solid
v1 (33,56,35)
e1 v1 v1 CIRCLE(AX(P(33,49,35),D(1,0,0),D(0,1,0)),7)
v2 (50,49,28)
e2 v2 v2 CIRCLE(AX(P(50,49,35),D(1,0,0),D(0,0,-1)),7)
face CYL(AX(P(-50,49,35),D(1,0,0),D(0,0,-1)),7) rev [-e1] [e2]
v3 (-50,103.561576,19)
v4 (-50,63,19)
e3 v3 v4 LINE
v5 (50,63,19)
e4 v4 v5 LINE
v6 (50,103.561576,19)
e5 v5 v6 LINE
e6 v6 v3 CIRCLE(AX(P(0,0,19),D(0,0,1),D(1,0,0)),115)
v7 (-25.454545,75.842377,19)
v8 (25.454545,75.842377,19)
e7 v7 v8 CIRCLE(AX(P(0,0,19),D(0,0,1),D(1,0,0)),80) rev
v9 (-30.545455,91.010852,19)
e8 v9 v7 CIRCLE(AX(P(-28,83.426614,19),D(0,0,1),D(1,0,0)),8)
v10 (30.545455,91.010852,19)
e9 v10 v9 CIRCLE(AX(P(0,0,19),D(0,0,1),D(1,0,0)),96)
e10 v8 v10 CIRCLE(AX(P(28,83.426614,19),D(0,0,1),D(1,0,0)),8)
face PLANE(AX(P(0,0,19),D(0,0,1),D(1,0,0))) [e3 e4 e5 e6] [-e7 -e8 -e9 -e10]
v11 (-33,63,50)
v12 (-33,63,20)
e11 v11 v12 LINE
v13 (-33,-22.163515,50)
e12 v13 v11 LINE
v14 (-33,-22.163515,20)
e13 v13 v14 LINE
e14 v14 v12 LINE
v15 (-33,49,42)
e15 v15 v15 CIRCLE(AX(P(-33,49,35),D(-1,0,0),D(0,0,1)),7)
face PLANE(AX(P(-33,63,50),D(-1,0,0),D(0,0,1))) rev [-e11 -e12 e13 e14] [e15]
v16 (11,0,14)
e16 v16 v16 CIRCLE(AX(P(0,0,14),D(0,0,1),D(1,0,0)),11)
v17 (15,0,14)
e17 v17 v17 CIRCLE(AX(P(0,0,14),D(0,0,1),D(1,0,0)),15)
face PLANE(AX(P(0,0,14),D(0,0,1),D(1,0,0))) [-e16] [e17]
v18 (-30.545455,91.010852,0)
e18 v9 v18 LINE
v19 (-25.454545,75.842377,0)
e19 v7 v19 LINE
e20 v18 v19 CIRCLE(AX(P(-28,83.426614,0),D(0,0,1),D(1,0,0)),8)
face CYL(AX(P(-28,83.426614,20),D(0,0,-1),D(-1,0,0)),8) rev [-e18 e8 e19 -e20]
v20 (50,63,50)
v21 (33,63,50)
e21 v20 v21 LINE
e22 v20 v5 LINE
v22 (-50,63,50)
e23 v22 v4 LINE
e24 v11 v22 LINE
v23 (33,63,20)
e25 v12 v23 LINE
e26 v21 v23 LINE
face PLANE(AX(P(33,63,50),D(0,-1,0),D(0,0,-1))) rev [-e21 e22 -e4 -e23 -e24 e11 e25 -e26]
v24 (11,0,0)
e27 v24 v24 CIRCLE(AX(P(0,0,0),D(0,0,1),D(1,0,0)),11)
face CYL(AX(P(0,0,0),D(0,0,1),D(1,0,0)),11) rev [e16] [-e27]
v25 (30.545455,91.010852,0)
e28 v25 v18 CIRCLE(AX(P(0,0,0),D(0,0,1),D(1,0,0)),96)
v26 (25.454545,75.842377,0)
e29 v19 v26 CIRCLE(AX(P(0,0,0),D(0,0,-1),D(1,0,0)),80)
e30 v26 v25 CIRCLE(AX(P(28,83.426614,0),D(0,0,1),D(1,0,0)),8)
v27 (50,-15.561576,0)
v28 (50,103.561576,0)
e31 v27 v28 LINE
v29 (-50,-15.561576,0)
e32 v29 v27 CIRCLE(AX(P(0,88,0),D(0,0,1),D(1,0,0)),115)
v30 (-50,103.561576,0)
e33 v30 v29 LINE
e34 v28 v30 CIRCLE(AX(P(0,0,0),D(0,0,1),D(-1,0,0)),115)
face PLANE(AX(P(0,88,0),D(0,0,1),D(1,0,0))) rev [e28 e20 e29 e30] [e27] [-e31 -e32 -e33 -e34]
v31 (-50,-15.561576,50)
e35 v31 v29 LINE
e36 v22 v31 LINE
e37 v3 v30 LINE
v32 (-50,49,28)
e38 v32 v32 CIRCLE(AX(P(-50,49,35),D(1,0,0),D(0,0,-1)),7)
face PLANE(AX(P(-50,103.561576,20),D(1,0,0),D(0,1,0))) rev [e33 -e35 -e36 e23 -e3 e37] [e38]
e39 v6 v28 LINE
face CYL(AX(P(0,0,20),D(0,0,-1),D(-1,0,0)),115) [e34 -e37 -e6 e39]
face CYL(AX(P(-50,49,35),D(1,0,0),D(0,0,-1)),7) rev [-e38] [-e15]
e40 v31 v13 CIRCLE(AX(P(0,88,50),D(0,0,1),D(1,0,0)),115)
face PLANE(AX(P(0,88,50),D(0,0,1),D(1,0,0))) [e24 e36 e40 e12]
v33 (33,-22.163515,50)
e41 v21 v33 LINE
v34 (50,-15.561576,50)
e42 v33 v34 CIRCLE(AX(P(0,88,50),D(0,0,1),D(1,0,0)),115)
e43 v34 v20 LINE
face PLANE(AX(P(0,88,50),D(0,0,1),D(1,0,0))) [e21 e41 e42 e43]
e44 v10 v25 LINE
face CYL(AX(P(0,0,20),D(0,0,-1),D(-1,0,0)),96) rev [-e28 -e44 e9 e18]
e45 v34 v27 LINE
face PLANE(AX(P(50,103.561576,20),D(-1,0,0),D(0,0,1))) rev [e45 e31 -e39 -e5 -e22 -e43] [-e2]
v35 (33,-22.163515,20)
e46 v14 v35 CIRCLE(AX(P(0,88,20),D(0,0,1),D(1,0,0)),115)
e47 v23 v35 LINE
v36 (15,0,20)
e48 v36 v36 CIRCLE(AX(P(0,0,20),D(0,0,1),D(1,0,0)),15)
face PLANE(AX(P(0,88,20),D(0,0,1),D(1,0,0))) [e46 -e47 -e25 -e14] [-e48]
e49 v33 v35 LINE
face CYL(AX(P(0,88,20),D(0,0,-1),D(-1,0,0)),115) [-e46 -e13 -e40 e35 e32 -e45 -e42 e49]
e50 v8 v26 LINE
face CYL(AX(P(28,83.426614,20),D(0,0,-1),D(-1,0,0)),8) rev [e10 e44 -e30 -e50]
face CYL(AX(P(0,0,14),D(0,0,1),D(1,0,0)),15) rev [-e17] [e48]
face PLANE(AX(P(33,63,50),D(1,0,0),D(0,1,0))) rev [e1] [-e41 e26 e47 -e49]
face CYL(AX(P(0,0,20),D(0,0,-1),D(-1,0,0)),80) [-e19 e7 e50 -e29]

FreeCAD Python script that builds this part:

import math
import FreeCAD as App
import Part
import Sketcher
from FreeCAD import Vector
Q = App.Units.Quantity

doc = App.newDocument("Part")
body = doc.addObject("PartDesign::Body", "Body")

sketch1 = doc.addObject("Sketcher::SketchObject", "Sketch")
body.addObject(sketch1)
sketch1.AttachmentSupport = (doc.XY_Plane, [""])
sketch1.MapMode = "FlatFace"
sketch1.addGeometry([
    Part.LineSegment(Vector(-50, 104, 0), Vector(-50, -16, 0)),
    Part.ArcOfCircle(Part.Circle(Vector(0, 88, 0), Vector(0, 0, 1), 115), math.radians(-116), math.radians(-64)),
    Part.LineSegment(Vector(50, -16, 0), Vector(50, 104, 0)),
    Part.ArcOfCircle(Part.Circle(Vector(0, 0, 0), Vector(0, 0, 1), 115), math.radians(64), math.radians(116)),
    Part.ArcOfCircle(Part.Circle(Vector(0, 0, 0), Vector(0, 0, 1), 96), math.radians(71), math.radians(109)),
    Part.ArcOfCircle(Part.Circle(Vector(28, 83, 0), Vector(0, 0, 1), 8), math.radians(-109), math.radians(71)),
    Part.ArcOfCircle(Part.Circle(Vector(0, 0, 0), Vector(0, 0, 1), 80), math.radians(71), math.radians(109)),
    Part.ArcOfCircle(Part.Circle(Vector(-28, 83, 0), Vector(0, 0, 1), 8), math.radians(109), math.radians(289)),
], False)
sketch1.addConstraint([
    Sketcher.Constraint("Coincident", 0, 2, 1, 1),
    Sketcher.Constraint("Coincident", 1, 2, 2, 1),
    Sketcher.Constraint("Coincident", 2, 2, 3, 1),
    Sketcher.Constraint("Coincident", 3, 2, 0, 1),
    Sketcher.Constraint("Tangent", 4, 1, 5, 2),
    Sketcher.Constraint("Tangent", 5, 1, 6, 1),
    Sketcher.Constraint("Tangent", 6, 2, 7, 2),
    Sketcher.Constraint("Tangent", 7, 1, 4, 2),
    Sketcher.Constraint("Vertical", 0),
    Sketcher.Constraint("Vertical", 2),
    Sketcher.Constraint("Coincident", 3, 3, -1, 1),
    Sketcher.Constraint("Coincident", 4, 3, -1, 1),
    Sketcher.Constraint("Coincident", 6, 3, -1, 1),
    Sketcher.Constraint("Equal", 1, 3),
    Sketcher.Constraint("Symmetric", 0, 2, 1, 2, -2),
    Sketcher.Constraint("Horizontal", 5, 3, 7, 3),
    Sketcher.Constraint("Radius", 1, Q("115 mm")),
    Sketcher.Constraint("Radius", 4, Q("96 mm")),
    Sketcher.Constraint("Radius", 5, Q("8 mm")),
    Sketcher.Constraint("DistanceY", -1, 1, 1, 3, Q("88 mm")),
    Sketcher.Constraint("DistanceX", -1, 1, 5, 3, Q("28 mm")),
    Sketcher.Constraint("DistanceX", 0, 2, -1, 1, Q("50 mm")),
])
pad1 = doc.addObject("PartDesign::Pad", "Pad")
body.addObject(pad1)
pad1.Profile = sketch1
pad1.Length = 20

sketch2 = doc.addObject("Sketcher::SketchObject", "Sketch001")
body.addObject(sketch2)
sketch2.AttachmentSupport = (doc.XY_Plane, [""])
sketch2.MapMode = "FlatFace"
sketch2.AttachmentOffset = App.Placement(Vector(0, 0, 20), App.Rotation())
sketch2.addGeometry([
    Part.LineSegment(Vector(-33, 63, 0), Vector(-50, 63, 0)),
    Part.LineSegment(Vector(-50, 63, 0), Vector(-50, -16, 0)),
    Part.ArcOfCircle(Part.Circle(Vector(0, 88, 0), Vector(0, 0, 1), 115), math.radians(-115.77), math.radians(-106.68)),
    Part.LineSegment(Vector(-33, -22, 0), Vector(-33, 63, 0)),
    Part.LineSegment(Vector(50, -16, 0), Vector(50, 63, 0)),
    Part.LineSegment(Vector(50, 63, 0), Vector(33, 63, 0)),
    Part.LineSegment(Vector(33, 63, 0), Vector(33, -22, 0)),
    Part.ArcOfCircle(Part.Circle(Vector(0, 88, 0), Vector(0, 0, 1), 115), math.radians(-73.32), math.radians(-64.23)),
], False)
sketch2.addConstraint([
    Sketcher.Constraint("Coincident", 0, 2, 1, 1),
    Sketcher.Constraint("Coincident", 1, 2, 2, 1),
    Sketcher.Constraint("Coincident", 2, 2, 3, 1),
    Sketcher.Constraint("Coincident", 3, 2, 0, 1),
    Sketcher.Constraint("Coincident", 4, 2, 5, 1),
    Sketcher.Constraint("Coincident", 5, 2, 6, 1),
    Sketcher.Constraint("Coincident", 6, 2, 7, 1),
    Sketcher.Constraint("Coincident", 7, 2, 4, 1),
    Sketcher.Constraint("Horizontal", 0),
    Sketcher.Constraint("Vertical", 1),
    Sketcher.Constraint("Vertical", 3),
    Sketcher.Constraint("Vertical", 4),
    Sketcher.Constraint("Horizontal", 5),
    Sketcher.Constraint("Vertical", 6),
    Sketcher.Constraint("Coincident", 7, 3, 2, 3),
    Sketcher.Constraint("Equal", 2, 7),
    Sketcher.Constraint("Symmetric", 0, 2, 4, 2, -2),
    Sketcher.Constraint("Symmetric", 2, 2, 6, 2, -2),
    Sketcher.Constraint("Radius", 2, Q("115 mm")),
    Sketcher.Constraint("DistanceX", 0, 2, 0, 1, Q("17 mm")),
    Sketcher.Constraint("DistanceY", -1, 1, 2, 3, Q("88 mm")),
    Sketcher.Constraint("DistanceX", 0, 2, -1, 1, Q("50 mm")),
    Sketcher.Constraint("DistanceY", -1, 1, 0, 2, Q("63 mm")),
])
pad2 = doc.addObject("PartDesign::Pad", "Pad001")
body.addObject(pad2)
pad2.Profile = sketch2
pad2.Length = 30

sketch3 = doc.addObject("Sketcher::SketchObject", "Sketch002")
body.addObject(sketch3)
sketch3.AttachmentSupport = (doc.XY_Plane, [""])
sketch3.MapMode = "FlatFace"
sketch3.AttachmentOffset = App.Placement(Vector(0, 0, 20), App.Rotation())
sketch3.addGeometry([
    Part.LineSegment(Vector(50, 63, 0), Vector(50, 104, 0)),
    Part.ArcOfCircle(Part.Circle(Vector(0, 0, 0), Vector(0, 0, 1), 115), math.radians(64), math.radians(116)),
    Part.LineSegment(Vector(-50, 104, 0), Vector(-50, 63, 0)),
    Part.LineSegment(Vector(-50, 63, 0), Vector(50, 63, 0)),
], False)
sketch3.addConstraint([
    Sketcher.Constraint("Coincident", 0, 2, 1, 1),
    Sketcher.Constraint("Coincident", 1, 2, 2, 1),
    Sketcher.Constraint("Coincident", 2, 2, 3, 1),
    Sketcher.Constraint("Coincident", 3, 2, 0, 1),
    Sketcher.Constraint("Vertical", 0),
    Sketcher.Constraint("Vertical", 2),
    Sketcher.Constraint("Horizontal", 3),
    Sketcher.Constraint("Coincident", 1, 3, -1, 1),
    Sketcher.Constraint("Horizontal", 0, 2, 1, 2),
    Sketcher.Constraint("Radius", 1, Q("115 mm")),
    Sketcher.Constraint("DistanceX", 3, 1, 3, 2, Q("100 mm")),
    Sketcher.Constraint("DistanceY", -1, 1, 2, 2, Q("63 mm")),
])
pocket1 = doc.addObject("PartDesign::Pocket", "Pocket")
body.addObject(pocket1)
pocket1.Profile = sketch3
pocket1.Length = 1

sketch4 = doc.addObject("Sketcher::SketchObject", "Sketch003")
body.addObject(sketch4)
sketch4.AttachmentSupport = (doc.XY_Plane, [""])
sketch4.MapMode = "FlatFace"
sketch4.AttachmentOffset = App.Placement(Vector(0, 0, 20), App.Rotation())
sketch4.addGeometry(Part.Circle(Vector(0, 0, 0), Vector(0, 0, 1), 15), False)
sketch4.addConstraint([
    Sketcher.Constraint("Coincident", 0, 3, -1, 1),
    Sketcher.Constraint("Diameter", 0, Q("30 mm")),
])
pocket2 = doc.addObject("PartDesign::Pocket", "Pocket001")
body.addObject(pocket2)
pocket2.Profile = sketch4
pocket2.Length = 6

sketch5 = doc.addObject("Sketcher::SketchObject", "Sketch004")
body.addObject(sketch5)
sketch5.AttachmentSupport = (doc.XY_Plane, [""])
sketch5.MapMode = "FlatFace"
sketch5.AttachmentOffset = App.Placement(Vector(0, 0, 14), App.Rotation())
sketch5.addGeometry(Part.Circle(Vector(0, 0, 0), Vector(0, 0, 1), 11), False)
sketch5.addConstraint([
    Sketcher.Constraint("Coincident", 0, 3, -1, 1),
    Sketcher.Constraint("Diameter", 0, Q("22 mm")),
])
pocket3 = doc.addObject("PartDesign::Pocket", "Pocket002")
body.addObject(pocket3)
pocket3.Profile = sketch5
pocket3.Type = "ThroughAll"

sketch6 = doc.addObject("Sketcher::SketchObject", "Sketch005")
body.addObject(sketch6)
sketch6.AttachmentSupport = (doc.YZ_Plane, [""])
sketch6.MapMode = "FlatFace"
sketch6.AttachmentOffset = App.Placement(Vector(0, 0, 50), App.Rotation())
sketch6.addGeometry(Part.Circle(Vector(49, 35, 0), Vector(0, 0, 1), 7), False)
sketch6.addConstraint([
    Sketcher.Constraint("Diameter", 0, Q("14 mm")),
    Sketcher.Constraint("DistanceX", -1, 1, 0, 3, Q("49 mm")),
    Sketcher.Constraint("DistanceY", -1, 1, 0, 3, Q("35 mm")),
])
pocket4 = doc.addObject("PartDesign::Pocket", "Pocket003")
body.addObject(pocket4)
pocket4.Profile = sketch6
pocket4.Type = "ThroughAll"

doc.recompute()
